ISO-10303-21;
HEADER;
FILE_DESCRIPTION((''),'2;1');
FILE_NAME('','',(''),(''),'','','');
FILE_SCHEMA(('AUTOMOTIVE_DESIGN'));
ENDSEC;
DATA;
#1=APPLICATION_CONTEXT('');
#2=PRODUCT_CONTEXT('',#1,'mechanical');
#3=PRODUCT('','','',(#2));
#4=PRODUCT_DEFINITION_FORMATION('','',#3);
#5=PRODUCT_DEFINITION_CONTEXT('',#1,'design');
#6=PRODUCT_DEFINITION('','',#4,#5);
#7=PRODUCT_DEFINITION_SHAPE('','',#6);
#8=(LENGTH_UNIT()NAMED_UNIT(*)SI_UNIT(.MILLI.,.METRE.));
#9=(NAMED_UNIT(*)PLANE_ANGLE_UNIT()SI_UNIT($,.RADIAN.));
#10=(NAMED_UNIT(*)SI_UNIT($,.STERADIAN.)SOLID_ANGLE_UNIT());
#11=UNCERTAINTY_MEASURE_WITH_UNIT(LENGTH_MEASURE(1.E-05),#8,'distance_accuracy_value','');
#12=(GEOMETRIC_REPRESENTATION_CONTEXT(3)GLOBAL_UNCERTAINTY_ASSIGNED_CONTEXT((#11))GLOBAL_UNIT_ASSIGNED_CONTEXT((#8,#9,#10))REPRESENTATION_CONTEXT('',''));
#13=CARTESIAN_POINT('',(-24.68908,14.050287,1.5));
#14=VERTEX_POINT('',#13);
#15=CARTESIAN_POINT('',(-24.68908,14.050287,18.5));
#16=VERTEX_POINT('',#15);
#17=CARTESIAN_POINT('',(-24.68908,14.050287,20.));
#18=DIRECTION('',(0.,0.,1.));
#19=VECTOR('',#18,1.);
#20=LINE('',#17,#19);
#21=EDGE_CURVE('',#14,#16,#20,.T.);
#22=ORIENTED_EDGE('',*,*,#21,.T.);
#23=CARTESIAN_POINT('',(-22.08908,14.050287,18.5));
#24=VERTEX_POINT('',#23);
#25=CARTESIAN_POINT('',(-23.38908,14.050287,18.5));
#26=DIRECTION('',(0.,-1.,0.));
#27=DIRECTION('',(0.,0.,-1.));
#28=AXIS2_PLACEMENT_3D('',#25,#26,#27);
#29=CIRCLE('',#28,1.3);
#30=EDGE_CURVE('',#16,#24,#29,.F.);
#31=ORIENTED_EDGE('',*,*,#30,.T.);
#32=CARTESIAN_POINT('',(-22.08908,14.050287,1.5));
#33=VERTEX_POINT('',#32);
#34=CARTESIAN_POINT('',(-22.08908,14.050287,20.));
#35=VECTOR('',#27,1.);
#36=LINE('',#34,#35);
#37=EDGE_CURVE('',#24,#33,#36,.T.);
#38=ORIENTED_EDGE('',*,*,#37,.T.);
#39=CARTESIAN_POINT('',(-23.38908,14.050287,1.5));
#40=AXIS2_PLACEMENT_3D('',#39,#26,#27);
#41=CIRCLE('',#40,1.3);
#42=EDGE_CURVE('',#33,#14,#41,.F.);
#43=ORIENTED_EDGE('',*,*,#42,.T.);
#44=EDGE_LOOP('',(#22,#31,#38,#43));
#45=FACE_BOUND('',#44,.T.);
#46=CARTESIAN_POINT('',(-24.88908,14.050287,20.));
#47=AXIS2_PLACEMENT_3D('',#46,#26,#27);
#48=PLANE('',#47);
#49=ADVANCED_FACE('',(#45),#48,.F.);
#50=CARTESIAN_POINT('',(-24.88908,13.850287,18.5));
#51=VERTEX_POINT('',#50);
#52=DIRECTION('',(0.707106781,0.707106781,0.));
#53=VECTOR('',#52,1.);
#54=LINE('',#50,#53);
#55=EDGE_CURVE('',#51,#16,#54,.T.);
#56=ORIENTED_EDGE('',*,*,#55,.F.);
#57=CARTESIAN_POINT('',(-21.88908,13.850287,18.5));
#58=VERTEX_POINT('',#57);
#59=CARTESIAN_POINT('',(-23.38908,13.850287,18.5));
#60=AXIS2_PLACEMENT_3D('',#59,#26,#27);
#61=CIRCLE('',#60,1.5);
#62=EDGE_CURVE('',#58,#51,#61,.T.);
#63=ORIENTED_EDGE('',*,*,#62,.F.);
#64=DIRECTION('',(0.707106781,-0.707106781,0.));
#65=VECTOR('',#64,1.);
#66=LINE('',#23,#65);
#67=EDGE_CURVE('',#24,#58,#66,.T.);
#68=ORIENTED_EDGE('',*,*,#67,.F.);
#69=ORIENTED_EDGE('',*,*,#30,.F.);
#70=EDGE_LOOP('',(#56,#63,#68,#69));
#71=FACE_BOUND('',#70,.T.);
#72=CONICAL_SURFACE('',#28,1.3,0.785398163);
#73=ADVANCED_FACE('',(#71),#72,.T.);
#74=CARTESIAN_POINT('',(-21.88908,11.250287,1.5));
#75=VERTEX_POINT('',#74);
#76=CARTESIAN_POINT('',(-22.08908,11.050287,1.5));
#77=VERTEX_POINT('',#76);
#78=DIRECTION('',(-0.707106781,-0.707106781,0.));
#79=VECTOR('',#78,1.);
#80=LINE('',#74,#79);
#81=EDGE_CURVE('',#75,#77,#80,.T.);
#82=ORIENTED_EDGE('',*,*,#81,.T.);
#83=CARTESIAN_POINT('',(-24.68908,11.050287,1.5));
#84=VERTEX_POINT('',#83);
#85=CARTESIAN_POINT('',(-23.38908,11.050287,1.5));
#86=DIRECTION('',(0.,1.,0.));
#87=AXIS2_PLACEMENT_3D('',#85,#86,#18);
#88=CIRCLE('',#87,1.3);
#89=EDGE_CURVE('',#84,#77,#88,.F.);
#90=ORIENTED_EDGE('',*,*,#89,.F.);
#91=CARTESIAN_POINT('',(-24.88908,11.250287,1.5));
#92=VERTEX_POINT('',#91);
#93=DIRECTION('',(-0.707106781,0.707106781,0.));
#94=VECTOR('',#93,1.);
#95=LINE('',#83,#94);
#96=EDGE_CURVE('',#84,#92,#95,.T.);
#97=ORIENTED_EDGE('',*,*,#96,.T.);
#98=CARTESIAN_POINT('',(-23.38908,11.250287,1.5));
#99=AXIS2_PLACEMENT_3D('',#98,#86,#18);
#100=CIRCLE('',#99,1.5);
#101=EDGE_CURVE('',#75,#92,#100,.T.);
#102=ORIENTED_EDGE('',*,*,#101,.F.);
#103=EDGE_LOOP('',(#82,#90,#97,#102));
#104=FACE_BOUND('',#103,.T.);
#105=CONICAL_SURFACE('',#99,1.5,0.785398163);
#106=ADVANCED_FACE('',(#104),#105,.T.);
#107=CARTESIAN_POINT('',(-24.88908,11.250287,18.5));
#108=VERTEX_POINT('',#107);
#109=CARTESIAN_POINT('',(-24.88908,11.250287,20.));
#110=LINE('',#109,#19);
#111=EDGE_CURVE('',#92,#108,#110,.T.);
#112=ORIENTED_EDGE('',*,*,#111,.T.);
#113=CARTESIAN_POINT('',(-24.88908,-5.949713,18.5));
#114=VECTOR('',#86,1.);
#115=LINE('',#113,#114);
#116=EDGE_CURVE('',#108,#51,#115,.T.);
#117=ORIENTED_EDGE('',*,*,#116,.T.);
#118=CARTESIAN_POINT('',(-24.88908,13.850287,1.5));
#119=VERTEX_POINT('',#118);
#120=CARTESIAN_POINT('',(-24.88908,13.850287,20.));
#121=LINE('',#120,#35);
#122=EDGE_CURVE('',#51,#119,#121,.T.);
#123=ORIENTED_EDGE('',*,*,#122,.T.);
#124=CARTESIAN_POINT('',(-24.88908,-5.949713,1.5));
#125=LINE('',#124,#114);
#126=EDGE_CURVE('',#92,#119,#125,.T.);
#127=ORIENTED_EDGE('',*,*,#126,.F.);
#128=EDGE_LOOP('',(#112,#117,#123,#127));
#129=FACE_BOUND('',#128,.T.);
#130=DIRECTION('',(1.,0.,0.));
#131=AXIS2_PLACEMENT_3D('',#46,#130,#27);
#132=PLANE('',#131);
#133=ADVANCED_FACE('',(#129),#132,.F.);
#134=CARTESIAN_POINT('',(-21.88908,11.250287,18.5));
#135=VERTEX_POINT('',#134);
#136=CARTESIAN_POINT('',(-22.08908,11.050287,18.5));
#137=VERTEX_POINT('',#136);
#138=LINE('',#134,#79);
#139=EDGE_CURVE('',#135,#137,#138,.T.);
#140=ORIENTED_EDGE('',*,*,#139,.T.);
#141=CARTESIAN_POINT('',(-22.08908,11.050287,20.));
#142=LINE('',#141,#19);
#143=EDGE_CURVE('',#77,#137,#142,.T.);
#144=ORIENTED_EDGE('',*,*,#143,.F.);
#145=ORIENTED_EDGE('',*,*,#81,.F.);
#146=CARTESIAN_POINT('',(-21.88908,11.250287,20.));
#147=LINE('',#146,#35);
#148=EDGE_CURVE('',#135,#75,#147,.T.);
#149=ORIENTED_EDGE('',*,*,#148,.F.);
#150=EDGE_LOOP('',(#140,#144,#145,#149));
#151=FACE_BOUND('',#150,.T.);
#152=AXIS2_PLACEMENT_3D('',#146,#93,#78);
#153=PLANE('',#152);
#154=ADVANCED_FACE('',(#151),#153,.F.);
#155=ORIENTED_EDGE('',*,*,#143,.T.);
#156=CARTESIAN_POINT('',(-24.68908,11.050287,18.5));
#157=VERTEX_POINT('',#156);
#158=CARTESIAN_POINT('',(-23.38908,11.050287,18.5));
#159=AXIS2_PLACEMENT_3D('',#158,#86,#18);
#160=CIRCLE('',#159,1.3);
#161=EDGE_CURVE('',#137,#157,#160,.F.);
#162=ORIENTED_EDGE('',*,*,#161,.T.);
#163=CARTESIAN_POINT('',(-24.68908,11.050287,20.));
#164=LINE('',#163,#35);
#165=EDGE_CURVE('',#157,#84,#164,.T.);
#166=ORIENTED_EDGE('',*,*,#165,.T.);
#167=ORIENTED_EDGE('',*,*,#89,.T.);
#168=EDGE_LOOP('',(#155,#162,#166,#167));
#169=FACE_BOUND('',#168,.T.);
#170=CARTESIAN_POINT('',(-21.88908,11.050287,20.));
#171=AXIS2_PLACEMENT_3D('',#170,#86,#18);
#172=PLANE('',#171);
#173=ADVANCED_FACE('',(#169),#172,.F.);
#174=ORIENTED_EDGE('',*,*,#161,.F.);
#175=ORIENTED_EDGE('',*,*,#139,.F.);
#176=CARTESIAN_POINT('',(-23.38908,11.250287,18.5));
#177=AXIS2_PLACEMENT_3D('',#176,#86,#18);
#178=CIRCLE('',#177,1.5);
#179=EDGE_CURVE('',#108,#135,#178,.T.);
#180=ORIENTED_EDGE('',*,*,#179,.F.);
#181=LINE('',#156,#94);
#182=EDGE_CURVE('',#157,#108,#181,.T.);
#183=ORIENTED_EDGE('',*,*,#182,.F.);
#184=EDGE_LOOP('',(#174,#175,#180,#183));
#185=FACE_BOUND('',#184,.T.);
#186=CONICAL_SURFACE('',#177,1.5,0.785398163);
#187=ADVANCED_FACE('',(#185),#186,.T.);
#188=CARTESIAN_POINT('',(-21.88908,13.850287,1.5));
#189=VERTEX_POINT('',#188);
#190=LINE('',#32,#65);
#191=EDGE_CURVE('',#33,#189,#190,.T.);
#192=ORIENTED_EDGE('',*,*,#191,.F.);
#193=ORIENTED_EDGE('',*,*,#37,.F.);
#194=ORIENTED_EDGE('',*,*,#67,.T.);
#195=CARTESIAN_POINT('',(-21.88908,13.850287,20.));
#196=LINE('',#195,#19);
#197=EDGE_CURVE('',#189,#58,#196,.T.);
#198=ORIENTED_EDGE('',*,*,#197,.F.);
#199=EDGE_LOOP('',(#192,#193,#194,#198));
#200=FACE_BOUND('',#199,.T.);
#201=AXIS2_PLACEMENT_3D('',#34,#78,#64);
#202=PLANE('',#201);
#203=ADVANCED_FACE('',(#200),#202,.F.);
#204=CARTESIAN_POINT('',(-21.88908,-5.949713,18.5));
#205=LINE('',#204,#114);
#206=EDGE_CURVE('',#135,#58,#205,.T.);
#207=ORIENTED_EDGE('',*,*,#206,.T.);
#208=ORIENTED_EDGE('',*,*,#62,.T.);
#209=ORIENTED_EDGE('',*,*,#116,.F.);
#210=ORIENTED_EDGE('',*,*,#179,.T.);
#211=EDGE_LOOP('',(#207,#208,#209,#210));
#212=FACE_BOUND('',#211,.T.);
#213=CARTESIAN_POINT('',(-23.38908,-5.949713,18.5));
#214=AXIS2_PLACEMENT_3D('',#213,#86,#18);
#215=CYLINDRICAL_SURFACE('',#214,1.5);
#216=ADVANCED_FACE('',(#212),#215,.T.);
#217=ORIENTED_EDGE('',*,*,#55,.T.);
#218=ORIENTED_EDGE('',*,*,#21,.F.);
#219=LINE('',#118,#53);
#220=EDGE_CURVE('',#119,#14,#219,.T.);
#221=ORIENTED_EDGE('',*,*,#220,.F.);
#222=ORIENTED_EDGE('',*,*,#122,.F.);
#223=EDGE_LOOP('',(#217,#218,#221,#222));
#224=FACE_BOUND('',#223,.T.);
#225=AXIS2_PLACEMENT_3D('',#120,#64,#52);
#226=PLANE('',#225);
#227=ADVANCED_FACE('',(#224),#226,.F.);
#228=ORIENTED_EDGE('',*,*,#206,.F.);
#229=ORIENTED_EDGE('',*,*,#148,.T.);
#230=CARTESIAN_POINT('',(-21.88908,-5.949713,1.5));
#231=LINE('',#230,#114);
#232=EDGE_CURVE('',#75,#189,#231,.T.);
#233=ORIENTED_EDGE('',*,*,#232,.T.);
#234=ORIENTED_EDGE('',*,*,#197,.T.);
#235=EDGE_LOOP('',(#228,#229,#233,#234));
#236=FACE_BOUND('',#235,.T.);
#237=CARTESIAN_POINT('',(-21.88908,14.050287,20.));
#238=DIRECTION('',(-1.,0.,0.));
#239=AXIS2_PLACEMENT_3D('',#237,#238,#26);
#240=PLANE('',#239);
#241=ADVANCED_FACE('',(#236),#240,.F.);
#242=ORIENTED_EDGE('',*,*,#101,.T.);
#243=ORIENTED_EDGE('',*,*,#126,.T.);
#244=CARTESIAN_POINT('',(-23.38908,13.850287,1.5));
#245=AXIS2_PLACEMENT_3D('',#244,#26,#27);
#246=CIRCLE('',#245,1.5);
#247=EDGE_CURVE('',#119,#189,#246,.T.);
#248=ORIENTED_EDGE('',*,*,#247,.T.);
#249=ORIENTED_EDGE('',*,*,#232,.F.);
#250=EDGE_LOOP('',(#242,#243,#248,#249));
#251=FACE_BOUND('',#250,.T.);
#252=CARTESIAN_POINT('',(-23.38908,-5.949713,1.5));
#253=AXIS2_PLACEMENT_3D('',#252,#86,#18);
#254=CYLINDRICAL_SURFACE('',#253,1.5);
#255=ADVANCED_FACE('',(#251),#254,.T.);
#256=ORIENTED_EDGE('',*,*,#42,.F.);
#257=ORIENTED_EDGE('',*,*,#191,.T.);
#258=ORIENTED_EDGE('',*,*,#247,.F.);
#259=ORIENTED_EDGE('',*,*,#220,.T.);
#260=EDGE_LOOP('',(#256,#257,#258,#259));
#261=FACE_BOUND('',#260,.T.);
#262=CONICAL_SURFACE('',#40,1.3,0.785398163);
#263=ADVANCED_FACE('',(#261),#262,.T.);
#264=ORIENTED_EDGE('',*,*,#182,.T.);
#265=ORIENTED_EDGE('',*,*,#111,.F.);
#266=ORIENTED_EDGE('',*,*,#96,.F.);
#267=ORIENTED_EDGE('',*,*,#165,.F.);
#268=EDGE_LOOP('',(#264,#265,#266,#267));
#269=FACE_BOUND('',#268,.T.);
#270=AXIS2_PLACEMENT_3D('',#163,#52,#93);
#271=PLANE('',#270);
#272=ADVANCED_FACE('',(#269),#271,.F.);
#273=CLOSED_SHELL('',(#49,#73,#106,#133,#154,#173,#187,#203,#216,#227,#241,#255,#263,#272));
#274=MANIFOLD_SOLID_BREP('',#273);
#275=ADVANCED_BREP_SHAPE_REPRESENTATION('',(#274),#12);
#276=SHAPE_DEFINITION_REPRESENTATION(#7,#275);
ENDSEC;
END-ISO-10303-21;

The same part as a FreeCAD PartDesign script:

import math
import FreeCAD as App
import Part
import Sketcher
Q = App.Units.Quantity


def edges_at(feature, points):
    """Names of the edges that pass closest to the given points."""
    edges = feature.Shape.Edges
    near = lambda p: min(range(len(edges)), key=lambda i: edges[i].distToShape(Part.Vertex(*p))[0])
    return sorted({f"Edge{near(p) + 1}" for p in points})

doc = App.newDocument("Part")
body = doc.addObject("PartDesign::Body", "Body")

# Sketch on XY plane
sketch1 = doc.addObject("Sketcher::SketchObject", "Sketch")
body.addObject(sketch1)
sketch1.AttachmentSupport = (doc.XY_Plane, [""])
sketch1.MapMode = "FlatFace"
sketch1.addGeometry([
    Part.LineSegment(App.Vector(-24.9, 14.1, 0), App.Vector(-24.9, 11.1, 0)),
    Part.LineSegment(App.Vector(-24.9, 11.1, 0), App.Vector(-21.9, 11.1, 0)),
    Part.LineSegment(App.Vector(-21.9, 11.1, 0), App.Vector(-21.9, 14.1, 0)),
    Part.LineSegment(App.Vector(-21.9, 14.1, 0), App.Vector(-24.9, 14.1, 0)),
], False)
sketch1.addConstraint([
    Sketcher.Constraint("Coincident", 0, 2, 1, 1),
    Sketcher.Constraint("Coincident", 1, 2, 2, 1),
    Sketcher.Constraint("Coincident", 2, 2, 3, 1),
    Sketcher.Constraint("Coincident", 3, 2, 0, 1),
    Sketcher.Constraint("Vertical", 0),
    Sketcher.Constraint("Horizontal", 1),
    Sketcher.Constraint("Vertical", 2),
    Sketcher.Constraint("Horizontal", 3),
    Sketcher.Constraint("Equal", 3, 0),
    Sketcher.Constraint("DistanceX", 1, 1, 1, 2, Q("3 mm")),
    Sketcher.Constraint("DistanceX", 0, 2, -1, 1, Q("24.88908 mm")),
    Sketcher.Constraint("DistanceY", -1, 1, 0, 2, Q("11.050287 mm")),
])
pad1 = doc.addObject("PartDesign::Pad", "Pad")
body.addObject(pad1)
pad1.Profile = sketch1
pad1.Length = 20

# Sketch on XZ plane
sketch2 = doc.addObject("Sketcher::SketchObject", "Sketch001")
body.addObject(sketch2)
sketch2.AttachmentSupport = (doc.XZ_Plane, [""])
sketch2.MapMode = "FlatFace"
sketch2.AttachmentOffset = App.Placement(App.Vector(0, 0, -14.050287), App.Rotation())
sketch2.addGeometry([
    Part.LineSegment(App.Vector(-27.9, -3, 0), App.Vector(-27.9, 23, 0)),  # 0
    Part.LineSegment(App.Vector(-27.9, 23, 0), App.Vector(-18.8, 23, 0)),  # 1
    Part.LineSegment(App.Vector(-18.8, 23, 0), App.Vector(-18.8, -3, 0)),  # 2
    Part.LineSegment(App.Vector(-18.8, -3, 0), App.Vector(-27.9, -3, 0)),  # 3
    Part.LineSegment(App.Vector(-24.9, 18.5, 0), App.Vector(-24.9, 1.5, 0)),  # 4
    Part.ArcOfCircle(Part.Circle(App.Vector(-23.4, 1.5, 0), App.Vector(0, 0, 1), 1.5), math.radians(180), math.radians(360)),  # 5
    Part.LineSegment(App.Vector(-21.9, 1.5, 0), App.Vector(-21.9, 18.5, 0)),  # 6
    Part.ArcOfCircle(Part.Circle(App.Vector(-23.4, 18.5, 0), App.Vector(0, 0, 1), 1.5), math.radians(0), math.radians(180)),  # 7
], False)
sketch2.addConstraint([
    Sketcher.Constraint("Coincident", 0, 2, 1, 1),
    Sketcher.Constraint("Coincident", 1, 2, 2, 1),
    Sketcher.Constraint("Coincident", 2, 2, 3, 1),
    Sketcher.Constraint("Coincident", 3, 2, 0, 1),
    Sketcher.Constraint("Tangent", 4, 2, 5, 1),
    Sketcher.Constraint("Tangent", 5, 2, 6, 1),
    Sketcher.Constraint("Tangent", 6, 2, 7, 1),
    Sketcher.Constraint("Tangent", 7, 2, 4, 1),
    Sketcher.Constraint("Vertical", 0),
    Sketcher.Constraint("Horizontal", 1),
    Sketcher.Constraint("Vertical", 2),
    Sketcher.Constraint("Horizontal", 3),
    Sketcher.Constraint("Vertical", 4),
    Sketcher.Constraint("Vertical", 6),
    Sketcher.Constraint("Radius", 5, Q("1.5 mm")),
    Sketcher.Constraint("DistanceY", 4, 2, 4, 1, Q("17 mm")),
    Sketcher.Constraint("DistanceX", 1, 1, 1, 2, Q("9.09 mm")),
    Sketcher.Constraint("DistanceY", 0, 1, 0, 2, Q("26.09 mm")),
    Sketcher.Constraint("DistanceY", -1, 1, 5, 3, Q("1.5 mm")),
    Sketcher.Constraint("DistanceX", 0, 2, -1, 1, Q("27.934 mm")),
    Sketcher.Constraint("DistanceY", -1, 1, 0, 2, Q("23.045 mm")),
    Sketcher.Constraint("DistanceX", 5, 3, -1, 1, Q("23.38908 mm")),
])
pocket1 = doc.addObject("PartDesign::Pocket", "Pocket")
body.addObject(pocket1)
pocket1.Profile = sketch2
pocket1.Length = 20
pocket1.Reversed = True
doc.recompute()

chamfer = doc.addObject("PartDesign::Chamfer", "Chamfer")
body.addObject(chamfer)
chamfer.Base = (pocket1, edges_at(pocket1, [
    (-21.889, 14.05, 10),
    (-21.889, 11.05, 10),
    (-24.889, 11.05, 10),
    (-24.889, 14.05, 10),
    (-23.389, 14.05, 20),
    (-23.389, 14.05, 0),
    (-23.389, 11.05, 0),
    (-23.389, 11.05, 20),
]))
chamfer.Size = 0.2

doc.recompute()
